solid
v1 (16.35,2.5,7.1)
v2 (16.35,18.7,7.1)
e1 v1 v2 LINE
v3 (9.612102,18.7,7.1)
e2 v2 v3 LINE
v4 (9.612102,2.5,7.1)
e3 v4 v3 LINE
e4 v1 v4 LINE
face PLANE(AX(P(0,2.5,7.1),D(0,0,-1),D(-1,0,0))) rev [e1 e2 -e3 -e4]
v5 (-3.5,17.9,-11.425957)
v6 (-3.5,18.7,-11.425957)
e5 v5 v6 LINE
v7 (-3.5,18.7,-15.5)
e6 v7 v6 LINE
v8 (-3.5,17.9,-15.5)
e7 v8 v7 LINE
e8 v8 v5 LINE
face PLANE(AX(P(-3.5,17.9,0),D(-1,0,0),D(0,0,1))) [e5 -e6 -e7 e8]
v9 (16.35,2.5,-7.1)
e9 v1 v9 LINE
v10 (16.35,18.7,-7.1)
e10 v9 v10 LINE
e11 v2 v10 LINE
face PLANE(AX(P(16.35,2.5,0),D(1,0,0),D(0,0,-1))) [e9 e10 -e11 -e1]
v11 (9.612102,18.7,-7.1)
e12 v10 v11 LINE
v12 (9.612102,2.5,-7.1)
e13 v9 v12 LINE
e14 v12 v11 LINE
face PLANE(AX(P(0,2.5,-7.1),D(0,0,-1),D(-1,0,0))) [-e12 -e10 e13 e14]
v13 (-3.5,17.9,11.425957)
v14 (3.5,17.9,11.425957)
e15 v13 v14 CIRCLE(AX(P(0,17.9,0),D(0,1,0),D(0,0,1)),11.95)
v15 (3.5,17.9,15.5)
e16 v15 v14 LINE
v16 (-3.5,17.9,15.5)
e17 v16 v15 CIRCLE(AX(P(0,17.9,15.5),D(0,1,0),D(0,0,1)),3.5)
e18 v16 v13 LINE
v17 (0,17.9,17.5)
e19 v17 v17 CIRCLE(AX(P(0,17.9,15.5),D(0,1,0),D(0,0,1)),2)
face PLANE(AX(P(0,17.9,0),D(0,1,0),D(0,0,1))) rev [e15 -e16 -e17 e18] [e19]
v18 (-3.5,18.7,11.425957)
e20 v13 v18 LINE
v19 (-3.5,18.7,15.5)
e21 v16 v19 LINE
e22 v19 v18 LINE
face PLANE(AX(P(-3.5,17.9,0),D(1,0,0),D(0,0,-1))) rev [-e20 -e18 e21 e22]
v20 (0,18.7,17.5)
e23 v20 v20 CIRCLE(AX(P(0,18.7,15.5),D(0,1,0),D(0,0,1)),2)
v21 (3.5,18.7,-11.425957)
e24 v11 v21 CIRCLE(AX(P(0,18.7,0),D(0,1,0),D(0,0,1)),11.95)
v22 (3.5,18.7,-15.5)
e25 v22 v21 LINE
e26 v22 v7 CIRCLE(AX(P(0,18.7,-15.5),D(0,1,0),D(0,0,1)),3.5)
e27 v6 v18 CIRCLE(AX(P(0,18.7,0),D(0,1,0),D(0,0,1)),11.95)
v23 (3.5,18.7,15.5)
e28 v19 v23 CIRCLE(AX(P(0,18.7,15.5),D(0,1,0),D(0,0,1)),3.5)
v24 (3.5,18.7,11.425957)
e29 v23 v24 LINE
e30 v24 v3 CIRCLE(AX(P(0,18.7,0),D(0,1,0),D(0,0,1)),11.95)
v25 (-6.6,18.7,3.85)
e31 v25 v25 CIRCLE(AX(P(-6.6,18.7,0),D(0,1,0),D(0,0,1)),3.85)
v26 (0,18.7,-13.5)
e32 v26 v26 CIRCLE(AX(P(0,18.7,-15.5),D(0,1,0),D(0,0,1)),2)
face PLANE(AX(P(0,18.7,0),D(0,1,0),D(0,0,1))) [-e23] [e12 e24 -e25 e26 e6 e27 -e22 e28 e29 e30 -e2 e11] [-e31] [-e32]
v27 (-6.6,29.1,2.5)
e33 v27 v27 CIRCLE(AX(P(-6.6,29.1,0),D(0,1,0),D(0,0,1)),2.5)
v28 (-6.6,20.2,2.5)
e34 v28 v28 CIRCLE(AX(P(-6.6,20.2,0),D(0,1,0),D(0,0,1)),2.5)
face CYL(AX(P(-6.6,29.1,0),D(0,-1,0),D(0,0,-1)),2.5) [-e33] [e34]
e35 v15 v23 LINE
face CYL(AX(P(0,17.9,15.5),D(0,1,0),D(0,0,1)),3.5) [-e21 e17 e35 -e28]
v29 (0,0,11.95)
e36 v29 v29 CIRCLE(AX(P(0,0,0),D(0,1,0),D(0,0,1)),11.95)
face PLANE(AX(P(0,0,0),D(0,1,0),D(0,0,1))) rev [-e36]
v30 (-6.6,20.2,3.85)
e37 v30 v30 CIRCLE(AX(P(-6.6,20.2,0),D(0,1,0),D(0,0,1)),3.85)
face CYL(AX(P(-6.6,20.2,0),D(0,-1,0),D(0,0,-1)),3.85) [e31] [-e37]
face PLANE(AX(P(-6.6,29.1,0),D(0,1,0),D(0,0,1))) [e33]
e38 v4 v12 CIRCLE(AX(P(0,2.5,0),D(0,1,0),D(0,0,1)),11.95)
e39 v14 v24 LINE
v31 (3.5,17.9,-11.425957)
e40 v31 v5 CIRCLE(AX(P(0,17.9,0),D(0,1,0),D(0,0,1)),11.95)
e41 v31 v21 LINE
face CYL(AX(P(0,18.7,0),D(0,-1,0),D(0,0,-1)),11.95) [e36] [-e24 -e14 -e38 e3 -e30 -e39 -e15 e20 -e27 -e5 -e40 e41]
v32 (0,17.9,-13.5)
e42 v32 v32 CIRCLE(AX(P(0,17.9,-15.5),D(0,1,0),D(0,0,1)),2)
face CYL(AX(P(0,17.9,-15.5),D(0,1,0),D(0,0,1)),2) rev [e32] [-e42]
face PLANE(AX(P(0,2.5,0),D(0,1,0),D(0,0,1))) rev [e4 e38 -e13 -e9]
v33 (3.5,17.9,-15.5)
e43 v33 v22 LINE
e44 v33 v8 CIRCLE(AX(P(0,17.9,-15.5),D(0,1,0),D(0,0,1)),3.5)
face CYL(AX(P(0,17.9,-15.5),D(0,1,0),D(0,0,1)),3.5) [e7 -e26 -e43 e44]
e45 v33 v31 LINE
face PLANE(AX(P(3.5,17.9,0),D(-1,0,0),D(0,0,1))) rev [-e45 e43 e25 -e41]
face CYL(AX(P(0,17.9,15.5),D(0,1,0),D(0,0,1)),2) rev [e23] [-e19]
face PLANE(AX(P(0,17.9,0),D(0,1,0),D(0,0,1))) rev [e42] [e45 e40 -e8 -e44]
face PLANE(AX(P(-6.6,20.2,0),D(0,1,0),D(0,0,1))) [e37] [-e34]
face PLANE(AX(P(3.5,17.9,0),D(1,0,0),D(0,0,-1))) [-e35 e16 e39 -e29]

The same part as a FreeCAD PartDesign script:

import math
import FreeCAD as App
import Part
import Sketcher
from FreeCAD import Vector

doc = App.newDocument("Part")
params = doc.addObject("Spreadsheet::Sheet", "Params")
for row, (alias, value) in enumerate([
    ("sketch1_diameter", "23.9 mm"),
    ("pad1_length", "18.7 mm"),
    ("sketch2_radius", "11.95 mm"),
    ("sketch2_height", "14.2 mm"),
    ("pad2_length", "16.2 mm"),
    ("sketch3_diameter", "4 mm"),
    ("sketch3_radius", "3.5 mm"),
    ("sketch3_radius2", "11.95 mm"),
    ("pad3_length", "0.8 mm"),
    ("sketch4_diameter", "7.7 mm"),
    ("pad4_length", "1.5 mm"),
    ("sketch5_diameter", "5 mm"),
    ("pad5_length", "8.9 mm"),
], start=1):
    params.set(f"A{row}", alias)
    params.set(f"B{row}", "=" + value)
    params.setAlias(f"B{row}", alias)

body = doc.addObject("PartDesign::Body", "Body")

sketch1 = body.newObject("Sketcher::SketchObject", "Sketch")
sketch1.AttachmentSupport = (doc.getObject("XZ_Plane"), [""])
sketch1.MapMode = "FlatFace"
sketch1.addGeometry(Part.Circle(Vector(0, 0, 0), Vector(0, 0, 1), 12), False)
sketch1.addConstraint(Sketcher.Constraint("Coincident", 0, 3, -1, 1))
sketch1.addConstraint(Sketcher.Constraint("Diameter", 0, 23.9))
sketch1.setExpression("Constraints[1]", "Params.sketch1_diameter")
pad1 = body.newObject("PartDesign::Pad", "Pad")
pad1.Profile = sketch1
pad1.setExpression("Length", "Params.pad1_length")
pad1.Reversed = True

sketch2 = body.newObject("Sketcher::SketchObject", "Sketch001")
sketch2.AttachmentSupport = (doc.getObject("XZ_Plane"), [""])
sketch2.MapMode = "FlatFace"
sketch2.AttachmentOffset = App.Placement(Vector(0, 0, -2.5), App.Rotation())
sketch2.addGeometry(Part.ArcOfCircle(Part.Circle(Vector(0, 0, 0), Vector(0, 0, 1), 12), math.radians(-36), math.radians(0)), False)
sketch2.addGeometry(Part.ArcOfCircle(Part.Circle(Vector(0, 0, 0), Vector(0, 0, 1), 12), math.radians(0), math.radians(36)), False)
sketch2.addGeometry(Part.LineSegment(Vector(10, 7, 0), Vector(16, 7, 0)), False)
sketch2.addGeometry(Part.LineSegment(Vector(16, 7, 0), Vector(16, -7, 0)), False)
sketch2.addGeometry(Part.LineSegment(Vector(16, -7, 0), Vector(10, -7, 0)), False)
sketch2.addConstraint(Sketcher.Constraint("Tangent", 0, 2, 1, 1))
sketch2.addConstraint(Sketcher.Constraint("Coincident", 1, 2, 2, 1))
sketch2.addConstraint(Sketcher.Constraint("Coincident", 2, 2, 3, 1))
sketch2.addConstraint(Sketcher.Constraint("Coincident", 3, 2, 4, 1))
sketch2.addConstraint(Sketcher.Constraint("Coincident", 4, 2, 0, 1))
sketch2.addConstraint(Sketcher.Constraint("Horizontal", 2))
sketch2.addConstraint(Sketcher.Constraint("Vertical", 3))
sketch2.addConstraint(Sketcher.Constraint("Horizontal", 4))
sketch2.addConstraint(Sketcher.Constraint("Coincident", 0, 3, -1, 1))
sketch2.addConstraint(Sketcher.Constraint("Equal", 0, 1))
sketch2.addConstraint(Sketcher.Constraint("PointOnObject", 0, 2, -1))
sketch2.addConstraint(Sketcher.Constraint("Vertical", 1, 2, 4, 2))
sketch2.addConstraint(Sketcher.Constraint("Radius", 0, 11.95))
sketch2.addConstraint(Sketcher.Constraint("DistanceY", 3, 2, 3, 1, 14.2))
sketch2.addConstraint(Sketcher.Constraint("DistanceX", 0, 2, 2, 2, 4.4))
sketch2.setExpression("Constraints[12]", "Params.sketch2_radius")
sketch2.setExpression("Constraints[13]", "Params.sketch2_height")
pad2 = body.newObject("PartDesign::Pad", "Pad001")
pad2.Profile = sketch2
pad2.setExpression("Length", "Params.pad2_length")
pad2.Reversed = True

sketch3 = body.newObject("Sketcher::SketchObject", "Sketch002")
sketch3.AttachmentSupport = (doc.getObject("XZ_Plane"), [""])
sketch3.MapMode = "FlatFace"
sketch3.AttachmentOffset = App.Placement(Vector(0, 0, -17.9), App.Rotation())
sketch3.addGeometry(Part.LineSegment(Vector(-3.5, -15.5, 0), Vector(-3.5, -11.4, 0)), False)
sketch3.addGeometry(Part.ArcOfCircle(Part.Circle(Vector(0, 0, 0), Vector(0, 0, 1), 11.9), math.radians(-107), math.radians(-73)), False)
sketch3.addGeometry(Part.LineSegment(Vector(3.5, -11.4, 0), Vector(3.5, -15.5, 0)), False)
sketch3.addGeometry(Part.ArcOfCircle(Part.Circle(Vector(0, -15.5, 0), Vector(0, 0, 1), 3.5), math.radians(180), math.radians(360)), False)
sketch3.addGeometry(Part.Circle(Vector(0, -15.5, 0), Vector(0, 0, 1), 2), False)
sketch3.addGeometry(Part.LineSegment(Vector(-3.5, 11.4, 0), Vector(-3.5, 15.5, 0)), False)
sketch3.addGeometry(Part.ArcOfCircle(Part.Circle(Vector(0, 15.5, 0), Vector(0, 0, 1), 3.5), math.radians(0), math.radians(180)), False)
sketch3.addGeometry(Part.LineSegment(Vector(3.5, 15.5, 0), Vector(3.5, 11.4, 0)), False)
sketch3.addGeometry(Part.ArcOfCircle(Part.Circle(Vector(0, 0, 0), Vector(0, 0, 1), 11.9), math.radians(73), math.radians(107)), False)
sketch3.addGeometry(Part.Circle(Vector(0, 15.5, 0), Vector(0, 0, 1), 2), False)
sketch3.addConstraint(Sketcher.Constraint("Coincident", 0, 2, 1, 1))
sketch3.addConstraint(Sketcher.Constraint("Coincident", 1, 2, 2, 1))
sketch3.addConstraint(Sketcher.Constraint("Tangent", 2, 2, 3, 2))
sketch3.addConstraint(Sketcher.Constraint("Tangent", 3, 1, 0, 1))
sketch3.addConstraint(Sketcher.Constraint("Tangent", 5, 2, 6, 2))
sketch3.addConstraint(Sketcher.Constraint("Tangent", 6, 1, 7, 1))
sketch3.addConstraint(Sketcher.Constraint("Coincident", 7, 2, 8, 1))
sketch3.addConstraint(Sketcher.Constraint("Coincident", 8, 2, 5, 1))
sketch3.addConstraint(Sketcher.Constraint("Vertical", 0))
sketch3.addConstraint(Sketcher.Constraint("Vertical", 2))
sketch3.addConstraint(Sketcher.Constraint("Vertical", 5))
sketch3.addConstraint(Sketcher.Constraint("Vertical", 7))
sketch3.addConstraint(Sketcher.Constraint("Coincident", 1, 3, -1, 1))
sketch3.addConstraint(Sketcher.Constraint("Coincident", 8, 3, -1, 1))
sketch3.addConstraint(Sketcher.Constraint("Coincident", 4, 3, 3, 3))
sketch3.addConstraint(Sketcher.Constraint("Coincident", 9, 3, 6, 3))
sketch3.addConstraint(Sketcher.Constraint("Equal", 3, 6))
sketch3.addConstraint(Sketcher.Constraint("Equal", 1, 8))
sketch3.addConstraint(Sketcher.Constraint("Equal", 4, 9))
sketch3.addConstraint(Sketcher.Constraint("Symmetric", 3, 3, 6, 3, -1, 1))
sketch3.addConstraint(Sketcher.Constraint("PointOnObject", 3, 3, -2))
sketch3.addConstraint(Sketcher.Constraint("Diameter", 4, 4.0))
sketch3.addConstraint(Sketcher.Constraint("Radius", 3, 3.5))
sketch3.addConstraint(Sketcher.Constraint("Radius", 1, 11.95))
sketch3.addConstraint(Sketcher.Constraint("DistanceY", 3, 3, 6, 3, 31.0))
sketch3.setExpression("Constraints[21]", "Params.sketch3_diameter")
sketch3.setExpression("Constraints[22]", "Params.sketch3_radius")
sketch3.setExpression("Constraints[23]", "Params.sketch3_radius2")
pad3 = body.newObject("PartDesign::Pad", "Pad002")
pad3.Profile = sketch3
pad3.setExpression("Length", "Params.pad3_length")
pad3.Reversed = True

sketch4 = body.newObject("Sketcher::SketchObject", "Sketch003")
sketch4.AttachmentSupport = (doc.getObject("XZ_Plane"), [""])
sketch4.MapMode = "FlatFace"
sketch4.AttachmentOffset = App.Placement(Vector(0, 0, -18.7), App.Rotation())
sketch4.addGeometry(Part.Circle(Vector(-6.6, 0, 0), Vector(0, 0, 1), 3.9), False)
sketch4.addConstraint(Sketcher.Constraint("PointOnObject", 0, 3, -1))
sketch4.addConstraint(Sketcher.Constraint("Diameter", 0, 7.7))
sketch4.addConstraint(Sketcher.Constraint("DistanceX", 0, 3, -1, 1, 6.6))
sketch4.setExpression("Constraints[1]", "Params.sketch4_diameter")
pad4 = body.newObject("PartDesign::Pad", "Pad003")
pad4.Profile = sketch4
pad4.setExpression("Length", "Params.pad4_length")
pad4.Reversed = True

sketch5 = body.newObject("Sketcher::SketchObject", "Sketch004")
sketch5.AttachmentSupport = (doc.getObject("XZ_Plane"), [""])
sketch5.MapMode = "FlatFace"
sketch5.AttachmentOffset = App.Placement(Vector(0, 0, -20.2), App.Rotation())
sketch5.addGeometry(Part.Circle(Vector(-6.6, 0, 0), Vector(0, 0, 1), 2.5), False)
sketch5.addConstraint(Sketcher.Constraint("PointOnObject", 0, 3, -1))
sketch5.addConstraint(Sketcher.Constraint("Diameter", 0, 5.0))
sketch5.addConstraint(Sketcher.Constraint("DistanceX", 0, 3, -1, 1, 6.6))
sketch5.setExpression("Constraints[1]", "Params.sketch5_diameter")
pad5 = body.newObject("PartDesign::Pad", "Pad004")
pad5.Profile = sketch5
pad5.setExpression("Length", "Params.pad5_length")
pad5.Reversed = True

doc.recompute()
